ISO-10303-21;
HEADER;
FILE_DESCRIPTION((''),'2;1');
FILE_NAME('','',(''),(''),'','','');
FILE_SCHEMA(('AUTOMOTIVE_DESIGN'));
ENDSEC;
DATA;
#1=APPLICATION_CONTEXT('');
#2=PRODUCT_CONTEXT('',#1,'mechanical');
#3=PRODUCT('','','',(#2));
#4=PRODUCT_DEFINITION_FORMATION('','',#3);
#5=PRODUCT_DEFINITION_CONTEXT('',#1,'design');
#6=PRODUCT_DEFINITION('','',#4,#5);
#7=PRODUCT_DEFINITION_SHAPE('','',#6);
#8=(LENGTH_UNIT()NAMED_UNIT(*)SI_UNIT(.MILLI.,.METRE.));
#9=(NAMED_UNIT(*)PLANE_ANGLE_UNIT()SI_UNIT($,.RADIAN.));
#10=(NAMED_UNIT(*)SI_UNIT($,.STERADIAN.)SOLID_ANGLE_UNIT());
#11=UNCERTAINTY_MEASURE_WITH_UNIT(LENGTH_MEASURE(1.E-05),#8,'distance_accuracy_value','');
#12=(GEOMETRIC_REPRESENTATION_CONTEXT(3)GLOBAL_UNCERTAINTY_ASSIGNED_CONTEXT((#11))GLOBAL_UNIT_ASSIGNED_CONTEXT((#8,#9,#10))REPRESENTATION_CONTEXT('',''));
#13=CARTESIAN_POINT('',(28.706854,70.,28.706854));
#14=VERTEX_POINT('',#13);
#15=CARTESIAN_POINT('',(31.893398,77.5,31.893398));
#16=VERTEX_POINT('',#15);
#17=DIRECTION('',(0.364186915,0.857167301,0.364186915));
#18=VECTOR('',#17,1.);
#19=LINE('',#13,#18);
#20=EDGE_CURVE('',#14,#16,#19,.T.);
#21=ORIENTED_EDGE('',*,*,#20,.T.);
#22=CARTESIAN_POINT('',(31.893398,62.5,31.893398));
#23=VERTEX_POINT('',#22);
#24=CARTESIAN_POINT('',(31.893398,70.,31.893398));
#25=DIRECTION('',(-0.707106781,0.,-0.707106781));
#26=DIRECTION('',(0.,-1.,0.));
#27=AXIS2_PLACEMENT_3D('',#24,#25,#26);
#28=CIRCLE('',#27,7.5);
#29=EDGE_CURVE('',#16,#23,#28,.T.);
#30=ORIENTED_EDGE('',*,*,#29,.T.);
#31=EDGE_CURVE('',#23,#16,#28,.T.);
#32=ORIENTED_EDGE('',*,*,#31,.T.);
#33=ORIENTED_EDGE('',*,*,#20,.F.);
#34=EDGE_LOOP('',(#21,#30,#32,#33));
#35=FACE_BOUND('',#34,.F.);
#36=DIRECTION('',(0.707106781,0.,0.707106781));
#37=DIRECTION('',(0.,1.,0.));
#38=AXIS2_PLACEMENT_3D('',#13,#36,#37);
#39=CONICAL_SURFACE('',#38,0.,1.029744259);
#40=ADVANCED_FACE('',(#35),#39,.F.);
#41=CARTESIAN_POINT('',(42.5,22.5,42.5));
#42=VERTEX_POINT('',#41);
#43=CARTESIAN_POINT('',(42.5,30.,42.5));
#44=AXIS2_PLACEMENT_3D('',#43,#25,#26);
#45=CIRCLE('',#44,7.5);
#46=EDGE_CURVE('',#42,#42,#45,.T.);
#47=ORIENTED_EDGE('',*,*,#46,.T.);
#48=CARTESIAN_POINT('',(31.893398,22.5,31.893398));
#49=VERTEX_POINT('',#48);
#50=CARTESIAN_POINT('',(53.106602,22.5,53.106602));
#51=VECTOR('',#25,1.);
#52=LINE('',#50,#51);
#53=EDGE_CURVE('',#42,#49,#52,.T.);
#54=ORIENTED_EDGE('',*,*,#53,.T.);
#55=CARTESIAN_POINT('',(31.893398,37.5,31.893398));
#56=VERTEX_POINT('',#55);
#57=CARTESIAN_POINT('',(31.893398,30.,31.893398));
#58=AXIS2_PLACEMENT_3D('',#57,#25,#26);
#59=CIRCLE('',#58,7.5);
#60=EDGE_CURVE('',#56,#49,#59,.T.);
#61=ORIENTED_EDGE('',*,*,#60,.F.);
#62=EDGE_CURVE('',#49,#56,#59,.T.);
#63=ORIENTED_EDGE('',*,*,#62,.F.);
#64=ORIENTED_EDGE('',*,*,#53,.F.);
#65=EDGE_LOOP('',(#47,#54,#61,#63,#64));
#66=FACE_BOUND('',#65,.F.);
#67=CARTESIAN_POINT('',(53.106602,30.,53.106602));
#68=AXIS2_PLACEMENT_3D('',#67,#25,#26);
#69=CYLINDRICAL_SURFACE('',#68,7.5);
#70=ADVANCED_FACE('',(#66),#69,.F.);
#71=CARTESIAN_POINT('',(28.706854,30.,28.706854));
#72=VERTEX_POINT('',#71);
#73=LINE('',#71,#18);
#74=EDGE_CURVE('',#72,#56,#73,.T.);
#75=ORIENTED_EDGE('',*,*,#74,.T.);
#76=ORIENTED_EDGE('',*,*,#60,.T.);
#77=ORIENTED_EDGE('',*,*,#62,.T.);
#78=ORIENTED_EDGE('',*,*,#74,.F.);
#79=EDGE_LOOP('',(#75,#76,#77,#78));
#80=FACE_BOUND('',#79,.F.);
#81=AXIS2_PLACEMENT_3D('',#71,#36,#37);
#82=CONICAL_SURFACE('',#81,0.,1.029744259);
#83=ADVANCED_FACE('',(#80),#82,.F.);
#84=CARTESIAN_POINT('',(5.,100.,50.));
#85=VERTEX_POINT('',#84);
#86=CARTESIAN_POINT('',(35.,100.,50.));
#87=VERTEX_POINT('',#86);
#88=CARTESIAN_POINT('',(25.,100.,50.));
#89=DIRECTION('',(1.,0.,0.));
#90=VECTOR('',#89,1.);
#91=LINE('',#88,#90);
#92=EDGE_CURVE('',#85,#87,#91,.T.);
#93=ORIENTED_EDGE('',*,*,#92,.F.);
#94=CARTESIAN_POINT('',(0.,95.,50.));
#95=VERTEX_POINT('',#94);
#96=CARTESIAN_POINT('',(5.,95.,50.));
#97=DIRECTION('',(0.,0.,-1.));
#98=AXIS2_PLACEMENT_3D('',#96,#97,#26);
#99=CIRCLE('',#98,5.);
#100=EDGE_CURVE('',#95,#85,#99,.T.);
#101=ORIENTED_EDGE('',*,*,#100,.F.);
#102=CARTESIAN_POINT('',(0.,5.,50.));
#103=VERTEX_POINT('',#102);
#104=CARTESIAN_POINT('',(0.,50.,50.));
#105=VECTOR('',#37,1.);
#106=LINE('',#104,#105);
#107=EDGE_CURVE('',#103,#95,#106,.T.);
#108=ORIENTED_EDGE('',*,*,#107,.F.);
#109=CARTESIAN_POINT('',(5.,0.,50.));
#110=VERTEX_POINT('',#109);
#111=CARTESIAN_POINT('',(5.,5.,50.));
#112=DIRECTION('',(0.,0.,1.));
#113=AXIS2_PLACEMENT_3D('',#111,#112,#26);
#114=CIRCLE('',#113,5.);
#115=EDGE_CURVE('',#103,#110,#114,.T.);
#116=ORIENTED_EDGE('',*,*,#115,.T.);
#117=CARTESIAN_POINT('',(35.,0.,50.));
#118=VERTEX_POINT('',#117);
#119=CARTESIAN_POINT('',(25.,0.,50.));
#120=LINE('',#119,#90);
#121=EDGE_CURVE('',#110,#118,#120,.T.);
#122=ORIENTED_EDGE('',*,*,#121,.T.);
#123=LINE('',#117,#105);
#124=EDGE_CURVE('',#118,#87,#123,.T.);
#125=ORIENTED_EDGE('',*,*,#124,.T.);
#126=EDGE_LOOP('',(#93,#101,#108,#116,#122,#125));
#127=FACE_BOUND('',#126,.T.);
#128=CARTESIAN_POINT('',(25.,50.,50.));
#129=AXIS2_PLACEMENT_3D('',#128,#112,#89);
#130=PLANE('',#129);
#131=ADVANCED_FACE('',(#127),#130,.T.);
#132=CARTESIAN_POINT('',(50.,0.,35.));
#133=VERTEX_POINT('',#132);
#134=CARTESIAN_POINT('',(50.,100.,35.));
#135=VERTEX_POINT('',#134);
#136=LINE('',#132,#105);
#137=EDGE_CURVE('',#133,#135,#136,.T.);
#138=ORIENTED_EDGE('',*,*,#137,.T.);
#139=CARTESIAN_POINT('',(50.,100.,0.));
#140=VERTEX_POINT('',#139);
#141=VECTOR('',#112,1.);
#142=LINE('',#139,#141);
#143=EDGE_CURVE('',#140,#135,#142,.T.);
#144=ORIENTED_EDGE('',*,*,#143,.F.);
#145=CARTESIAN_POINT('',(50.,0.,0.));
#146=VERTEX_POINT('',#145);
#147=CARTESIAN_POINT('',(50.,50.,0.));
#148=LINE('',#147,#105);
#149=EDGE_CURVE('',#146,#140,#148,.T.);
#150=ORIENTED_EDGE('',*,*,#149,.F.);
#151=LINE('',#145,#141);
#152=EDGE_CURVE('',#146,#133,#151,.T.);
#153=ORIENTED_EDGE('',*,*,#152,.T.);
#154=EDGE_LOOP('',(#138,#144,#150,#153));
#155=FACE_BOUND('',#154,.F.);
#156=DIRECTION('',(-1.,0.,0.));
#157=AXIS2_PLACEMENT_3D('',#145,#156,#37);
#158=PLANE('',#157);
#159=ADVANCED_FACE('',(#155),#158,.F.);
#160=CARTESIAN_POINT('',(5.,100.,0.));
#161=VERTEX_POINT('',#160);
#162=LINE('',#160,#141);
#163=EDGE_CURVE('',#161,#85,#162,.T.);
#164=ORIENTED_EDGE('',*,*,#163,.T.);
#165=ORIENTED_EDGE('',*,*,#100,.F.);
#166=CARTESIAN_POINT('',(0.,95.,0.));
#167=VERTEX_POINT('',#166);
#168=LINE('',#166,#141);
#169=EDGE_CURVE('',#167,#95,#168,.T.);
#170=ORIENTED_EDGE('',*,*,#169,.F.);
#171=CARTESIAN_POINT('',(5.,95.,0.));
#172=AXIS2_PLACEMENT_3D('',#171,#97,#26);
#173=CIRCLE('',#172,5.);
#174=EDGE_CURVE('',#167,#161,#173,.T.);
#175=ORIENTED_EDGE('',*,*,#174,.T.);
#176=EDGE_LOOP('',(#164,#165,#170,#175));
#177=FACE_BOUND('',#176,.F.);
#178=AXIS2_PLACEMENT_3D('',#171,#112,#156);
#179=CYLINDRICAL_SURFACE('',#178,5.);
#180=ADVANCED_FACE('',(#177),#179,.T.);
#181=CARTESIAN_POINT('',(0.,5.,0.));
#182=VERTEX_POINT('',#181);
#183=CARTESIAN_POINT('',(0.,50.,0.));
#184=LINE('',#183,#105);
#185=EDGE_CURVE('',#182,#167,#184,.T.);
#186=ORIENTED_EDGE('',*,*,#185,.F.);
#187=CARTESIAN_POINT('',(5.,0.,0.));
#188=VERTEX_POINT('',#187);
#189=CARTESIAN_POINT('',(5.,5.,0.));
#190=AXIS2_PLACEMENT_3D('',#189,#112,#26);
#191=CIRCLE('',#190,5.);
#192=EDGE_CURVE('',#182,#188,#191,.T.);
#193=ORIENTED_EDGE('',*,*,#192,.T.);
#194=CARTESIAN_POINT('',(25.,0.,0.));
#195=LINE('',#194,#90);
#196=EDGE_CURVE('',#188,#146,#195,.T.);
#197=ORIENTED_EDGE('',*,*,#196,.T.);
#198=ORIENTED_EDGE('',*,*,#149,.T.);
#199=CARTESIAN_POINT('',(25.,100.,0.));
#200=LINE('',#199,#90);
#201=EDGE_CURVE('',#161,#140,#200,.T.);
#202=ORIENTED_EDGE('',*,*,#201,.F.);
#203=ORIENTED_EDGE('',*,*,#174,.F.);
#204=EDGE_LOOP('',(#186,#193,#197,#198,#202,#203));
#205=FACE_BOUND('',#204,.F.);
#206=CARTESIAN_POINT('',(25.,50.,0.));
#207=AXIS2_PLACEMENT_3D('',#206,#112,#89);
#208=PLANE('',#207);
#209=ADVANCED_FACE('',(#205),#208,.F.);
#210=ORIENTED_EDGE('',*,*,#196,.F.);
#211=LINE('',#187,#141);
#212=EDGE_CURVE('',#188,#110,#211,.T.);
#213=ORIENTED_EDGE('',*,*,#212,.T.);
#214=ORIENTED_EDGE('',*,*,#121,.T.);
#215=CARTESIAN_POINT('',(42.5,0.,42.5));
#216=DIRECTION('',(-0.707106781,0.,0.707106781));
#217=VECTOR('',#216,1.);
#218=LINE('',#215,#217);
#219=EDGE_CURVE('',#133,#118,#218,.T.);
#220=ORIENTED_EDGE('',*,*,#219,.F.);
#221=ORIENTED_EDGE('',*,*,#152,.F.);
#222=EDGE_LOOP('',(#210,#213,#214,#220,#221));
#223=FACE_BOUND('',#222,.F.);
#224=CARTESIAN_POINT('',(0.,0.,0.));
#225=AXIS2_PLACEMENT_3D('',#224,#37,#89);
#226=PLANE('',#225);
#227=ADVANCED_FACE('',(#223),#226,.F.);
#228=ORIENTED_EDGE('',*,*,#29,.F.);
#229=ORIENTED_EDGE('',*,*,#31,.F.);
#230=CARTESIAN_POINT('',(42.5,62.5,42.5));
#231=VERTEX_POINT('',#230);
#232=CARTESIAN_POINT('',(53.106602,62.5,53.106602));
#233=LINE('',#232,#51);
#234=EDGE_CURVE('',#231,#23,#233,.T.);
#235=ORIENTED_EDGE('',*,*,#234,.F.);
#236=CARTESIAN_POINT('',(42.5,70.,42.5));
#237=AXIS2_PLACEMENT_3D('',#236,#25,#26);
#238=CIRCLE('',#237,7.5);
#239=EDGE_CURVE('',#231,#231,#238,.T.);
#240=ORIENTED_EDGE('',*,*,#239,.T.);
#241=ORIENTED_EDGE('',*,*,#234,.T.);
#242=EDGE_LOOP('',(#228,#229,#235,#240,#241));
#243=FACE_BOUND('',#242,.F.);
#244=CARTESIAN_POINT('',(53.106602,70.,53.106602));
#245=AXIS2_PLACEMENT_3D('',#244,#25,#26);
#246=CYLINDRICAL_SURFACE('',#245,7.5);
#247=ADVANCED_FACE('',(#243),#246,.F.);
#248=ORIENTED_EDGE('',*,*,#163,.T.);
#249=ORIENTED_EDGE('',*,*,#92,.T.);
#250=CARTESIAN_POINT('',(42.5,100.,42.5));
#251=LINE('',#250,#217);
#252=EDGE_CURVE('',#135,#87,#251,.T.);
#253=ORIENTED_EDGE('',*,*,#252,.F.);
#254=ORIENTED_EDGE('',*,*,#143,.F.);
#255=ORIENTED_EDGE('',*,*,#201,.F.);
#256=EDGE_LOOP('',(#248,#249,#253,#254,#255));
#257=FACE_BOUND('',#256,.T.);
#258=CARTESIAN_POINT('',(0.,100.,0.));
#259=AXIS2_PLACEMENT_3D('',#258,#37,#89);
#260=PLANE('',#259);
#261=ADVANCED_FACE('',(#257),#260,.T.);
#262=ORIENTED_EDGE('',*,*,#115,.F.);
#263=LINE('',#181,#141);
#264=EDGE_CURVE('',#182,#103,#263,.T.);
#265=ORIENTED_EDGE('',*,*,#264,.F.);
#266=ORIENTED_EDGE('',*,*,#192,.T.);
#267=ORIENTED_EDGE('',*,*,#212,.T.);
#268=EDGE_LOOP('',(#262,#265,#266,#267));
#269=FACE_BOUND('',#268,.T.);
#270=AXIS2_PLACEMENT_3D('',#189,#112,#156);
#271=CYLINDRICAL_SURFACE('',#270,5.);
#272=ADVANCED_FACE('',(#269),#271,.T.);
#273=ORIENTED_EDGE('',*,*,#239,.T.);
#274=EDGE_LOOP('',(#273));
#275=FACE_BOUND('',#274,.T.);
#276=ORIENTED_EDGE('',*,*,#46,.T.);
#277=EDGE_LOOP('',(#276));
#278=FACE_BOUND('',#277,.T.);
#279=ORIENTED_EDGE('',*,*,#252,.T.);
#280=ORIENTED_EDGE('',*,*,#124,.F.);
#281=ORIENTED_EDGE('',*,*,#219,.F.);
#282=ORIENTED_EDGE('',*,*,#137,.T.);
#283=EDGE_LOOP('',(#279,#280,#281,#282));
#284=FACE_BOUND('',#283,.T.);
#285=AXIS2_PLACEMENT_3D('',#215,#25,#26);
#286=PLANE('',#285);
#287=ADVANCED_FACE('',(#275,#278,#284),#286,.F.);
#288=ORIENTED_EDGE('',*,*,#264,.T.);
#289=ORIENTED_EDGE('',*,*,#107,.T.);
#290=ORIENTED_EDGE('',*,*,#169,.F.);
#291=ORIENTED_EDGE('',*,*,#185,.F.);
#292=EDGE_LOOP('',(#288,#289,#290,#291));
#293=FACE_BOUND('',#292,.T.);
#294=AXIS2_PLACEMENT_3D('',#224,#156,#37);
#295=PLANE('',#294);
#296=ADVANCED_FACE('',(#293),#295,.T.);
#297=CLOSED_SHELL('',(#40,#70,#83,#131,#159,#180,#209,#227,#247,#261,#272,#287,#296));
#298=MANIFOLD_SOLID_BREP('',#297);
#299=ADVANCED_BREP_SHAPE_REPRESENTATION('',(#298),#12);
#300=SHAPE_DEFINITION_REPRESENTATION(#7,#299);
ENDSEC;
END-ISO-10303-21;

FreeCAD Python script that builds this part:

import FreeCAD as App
import Part
import Sketcher
Q = App.Units.Quantity


def edges_at(feature, points):
    """Names of the edges that pass closest to the given points."""
    edges = feature.Shape.Edges
    near = lambda p: min(range(len(edges)), key=lambda i: edges[i].distToShape(Part.Vertex(*p))[0])
    return sorted({f"Edge{near(p) + 1}" for p in points})


def add_polygon(sketch, points):
    """Adds a closed chain of lines whose ends are joined by coincident constraints."""
    first, n = sketch.GeometryCount, len(points)
    for a, b in zip(points, points[1:] + points[:1]):
        sketch.addGeometry(Part.LineSegment(App.Vector(*a, 0), App.Vector(*b, 0)), False)
    for i in range(n):
        sketch.addConstraint(Sketcher.Constraint("Coincident", first + i, 2, first + (i + 1) % n, 1))

doc = App.newDocument("Part")
body = doc.addObject("PartDesign::Body", "Body")

sketch1 = body.newObject("Sketcher::SketchObject", "Sketch")
sketch1.AttachmentSupport = (doc.getObject("XY_Plane"), [""])
sketch1.MapMode = "FlatFace"
add_polygon(sketch1, [(0, 100), (0, 0), (50, 0), (50, 100)])
sketch1.addConstraint([
    Sketcher.Constraint("Vertical", 0),
    Sketcher.Constraint("Horizontal", 1),
    Sketcher.Constraint("Vertical", 2),
    Sketcher.Constraint("Horizontal", 3),
    Sketcher.Constraint("Coincident", 0, 2, -1, 1),
    Sketcher.Constraint("DistanceX", 1, 1, 1, 2, Q("50 mm")),
    Sketcher.Constraint("DistanceY", 0, 2, 0, 1, Q("100 mm")),
])
pad1 = body.newObject("PartDesign::Pad", "Pad")
pad1.Profile = sketch1
pad1.Length = 50
doc.recompute()

chamfer = body.newObject("PartDesign::Chamfer", "Chamfer")
chamfer.Base = (pad1, edges_at(pad1, [(50, 50, 50)]))
chamfer.ChamferType = "Two distances"
chamfer.Size = 15
chamfer.Size2 = 15

sketch2 = body.newObject("Sketcher::SketchObject", "Sketch001")
sketch2.Placement = App.Placement(App.Vector(42.5, 0, 42.5), App.Rotation(App.Vector(0, 1, 0), App.Vector(-0.707106781, 0, 0.707106781), App.Vector(0.707106781, 0, 0.707106781), "ZXY"))
sketch2.addGeometry([
    Part.Circle(App.Vector(30, 0, 0), App.Vector(0, 0, 1), 8),
    Part.Circle(App.Vector(70, 0, 0), App.Vector(0, 0, 1), 8),
], False)
sketch2.addConstraint([
    Sketcher.Constraint("Equal", 0, 1),
    Sketcher.Constraint("PointOnObject", 0, 3, -1),
    Sketcher.Constraint("PointOnObject", 1, 3, -1),
    Sketcher.Constraint("Diameter", 0, Q("15 mm")),
    Sketcher.Constraint("DistanceX", -1, 1, 0, 3, Q("30 mm")),
    Sketcher.Constraint("DistanceX", -1, 1, 1, 3, Q("70 mm")),
])
doc.recompute()
hole = body.newObject("PartDesign::Hole", "Hole")
hole.Profile = sketch2
hole.ThreadType = "None"
hole.Diameter = 15
hole.DepthType = "Dimension"
hole.Depth = 15
hole.DrillPoint = "Angled"
hole.DrillPointAngle = 118
doc.recompute()

fillet = body.newObject("PartDesign::Fillet", "Fillet")
fillet.Base = (hole, edges_at(hole, [(0, 100, 25)]))
fillet.Radius = 5
doc.recompute()

fillet2 = body.newObject("PartDesign::Fillet", "Fillet001")
fillet2.Base = (fillet, edges_at(fillet, [(0, 0, 25)]))
fillet2.Radius = 5

doc.recompute()
